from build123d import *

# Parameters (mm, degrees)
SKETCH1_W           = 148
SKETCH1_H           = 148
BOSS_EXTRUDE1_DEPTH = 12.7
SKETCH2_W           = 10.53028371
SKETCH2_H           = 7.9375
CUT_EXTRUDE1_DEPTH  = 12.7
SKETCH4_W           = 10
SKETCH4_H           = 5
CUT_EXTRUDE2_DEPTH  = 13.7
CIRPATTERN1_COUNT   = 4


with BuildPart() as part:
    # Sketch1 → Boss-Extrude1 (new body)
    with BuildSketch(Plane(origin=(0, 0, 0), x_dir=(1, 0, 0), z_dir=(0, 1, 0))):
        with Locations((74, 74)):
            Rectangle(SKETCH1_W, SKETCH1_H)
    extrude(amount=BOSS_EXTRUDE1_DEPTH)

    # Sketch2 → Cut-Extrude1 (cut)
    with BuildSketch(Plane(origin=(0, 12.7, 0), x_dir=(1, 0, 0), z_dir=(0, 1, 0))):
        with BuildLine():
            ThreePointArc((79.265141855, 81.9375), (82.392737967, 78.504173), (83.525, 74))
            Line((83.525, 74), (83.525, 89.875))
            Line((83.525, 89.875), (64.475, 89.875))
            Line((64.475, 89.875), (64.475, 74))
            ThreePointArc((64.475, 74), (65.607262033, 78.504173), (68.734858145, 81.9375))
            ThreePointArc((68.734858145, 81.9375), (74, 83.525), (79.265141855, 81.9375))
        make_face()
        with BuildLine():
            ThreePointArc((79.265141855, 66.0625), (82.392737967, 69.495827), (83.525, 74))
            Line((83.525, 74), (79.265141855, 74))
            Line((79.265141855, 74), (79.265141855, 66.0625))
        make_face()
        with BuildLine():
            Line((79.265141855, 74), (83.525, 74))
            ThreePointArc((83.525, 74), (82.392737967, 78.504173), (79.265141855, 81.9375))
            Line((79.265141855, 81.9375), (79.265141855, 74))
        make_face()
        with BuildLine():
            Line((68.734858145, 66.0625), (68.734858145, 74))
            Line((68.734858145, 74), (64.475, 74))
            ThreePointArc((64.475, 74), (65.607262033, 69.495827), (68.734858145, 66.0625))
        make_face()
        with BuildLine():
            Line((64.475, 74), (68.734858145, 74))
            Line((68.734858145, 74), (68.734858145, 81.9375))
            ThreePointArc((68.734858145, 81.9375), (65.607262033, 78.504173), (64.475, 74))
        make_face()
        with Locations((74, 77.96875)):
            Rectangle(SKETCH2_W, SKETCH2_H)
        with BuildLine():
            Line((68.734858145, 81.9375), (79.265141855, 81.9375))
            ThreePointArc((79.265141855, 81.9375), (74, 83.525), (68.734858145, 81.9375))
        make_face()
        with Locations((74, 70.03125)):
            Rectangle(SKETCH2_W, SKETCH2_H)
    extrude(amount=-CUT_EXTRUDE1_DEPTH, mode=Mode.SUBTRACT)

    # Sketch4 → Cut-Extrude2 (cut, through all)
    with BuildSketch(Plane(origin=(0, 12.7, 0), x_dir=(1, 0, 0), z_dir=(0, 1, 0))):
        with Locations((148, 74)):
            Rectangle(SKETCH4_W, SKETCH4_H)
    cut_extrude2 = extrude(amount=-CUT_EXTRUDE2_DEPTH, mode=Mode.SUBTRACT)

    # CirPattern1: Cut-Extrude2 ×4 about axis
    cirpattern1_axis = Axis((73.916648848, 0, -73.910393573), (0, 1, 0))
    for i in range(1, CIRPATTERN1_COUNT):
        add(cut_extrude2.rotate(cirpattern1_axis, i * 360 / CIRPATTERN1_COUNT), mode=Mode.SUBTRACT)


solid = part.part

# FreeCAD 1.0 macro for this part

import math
import FreeCAD as App
import Part
import Sketcher
from FreeCAD import Vector


def add_polygon(sketch, points):
    """Adds a closed chain of lines whose ends are joined by coincident constraints."""
    first, n = sketch.GeometryCount, len(points)
    for a, b in zip(points, points[1:] + points[:1]):
        sketch.addGeometry(Part.LineSegment(App.Vector(*a, 0), App.Vector(*b, 0)), False)
    for i in range(n):
        sketch.addConstraint(Sketcher.Constraint("Coincident", first + i, 2, first + (i + 1) % n, 1))

doc = App.newDocument("Part")
body = doc.addObject("PartDesign::Body", "Body")

# Sketch on XZ plane
sketch1 = body.newObject("Sketcher::SketchObject", "Sketch")
sketch1.AttachmentSupport = (doc.getObject("XZ_Plane"), [""])
sketch1.MapMode = "FlatFace"
add_polygon(sketch1, [(0, -148), (0, 0), (148, 0), (148, -148)])  # lines 0-3
sketch1.addConstraint([
    Sketcher.Constraint("Vertical", 0),
    Sketcher.Constraint("Horizontal", 1),
    Sketcher.Constraint("Vertical", 2),
    Sketcher.Constraint("Horizontal", 3),
    Sketcher.Constraint("Coincident", 0, 2, -1, 1),
    Sketcher.Constraint("Equal", 3, 0),
    Sketcher.Constraint("DistanceX", 1, 1, 1, 2, 148.0),
])
pad1 = body.newObject("PartDesign::Pad", "Pad")
pad1.Profile = sketch1
pad1.Length = 12.7
pad1.Reversed = True

# Sketch on XZ plane
sketch2 = body.newObject("Sketcher::SketchObject", "Sketch001")
sketch2.AttachmentSupport = (doc.getObject("XZ_Plane"), [""])
sketch2.MapMode = "FlatFace"
sketch2.AttachmentOffset = App.Placement(Vector(0, 0, -12.7), App.Rotation())
sketch2.addGeometry([
    Part.ArcOfCircle(Part.Circle(Vector(74, -74, 0), Vector(0, 0, 1), 9.525), math.radians(0), math.radians(56.44269)),  # 0
    Part.LineSegment(Vector(83.525, -74, 0), Vector(83.525, -89.875, 0)),  # 1
    Part.LineSegment(Vector(83.525, -89.875, 0), Vector(64.475, -89.875, 0)),  # 2
    Part.LineSegment(Vector(64.475, -89.875, 0), Vector(64.475, -74, 0)),  # 3
    Part.ArcOfCircle(Part.Circle(Vector(74, -74, 0), Vector(0, 0, 1), 9.525), math.radians(123.55731), math.radians(180)),  # 4
    Part.LineSegment(Vector(68.734858, -66.0625, 0), Vector(79.265142, -66.0625, 0)),  # 5
], False)
sketch2.addConstraint([
    Sketcher.Constraint("Tangent", 0, 1, 1, 1),
    Sketcher.Constraint("Coincident", 1, 2, 2, 1),
    Sketcher.Constraint("Coincident", 2, 2, 3, 1),
    Sketcher.Constraint("Tangent", 3, 2, 4, 2),
    Sketcher.Constraint("Coincident", 4, 1, 5, 1),
    Sketcher.Constraint("Coincident", 5, 2, 0, 2),
    Sketcher.Constraint("Vertical", 1),
    Sketcher.Constraint("Horizontal", 2),
    Sketcher.Constraint("Vertical", 3),
    Sketcher.Constraint("Horizontal", 5),
    Sketcher.Constraint("Coincident", 4, 3, 0, 3),
    Sketcher.Constraint("Equal", 0, 4),
    Sketcher.Constraint("DistanceX", -1, 1, 0, 3, 74.0),
    Sketcher.Constraint("DistanceY", 0, 3, -1, 1, 74.0),
    Sketcher.Constraint("Radius", 0, 9.525),
    Sketcher.Constraint("DistanceY", 1, 2, 1, 1, 15.875),
    Sketcher.Constraint("DistanceY", 4, 1, -1, 1, 66.0625),
])
pocket1 = body.newObject("PartDesign::Pocket", "Pocket")
pocket1.Profile = sketch2
pocket1.Length = 12.7
pocket1.Reversed = True

# Sketch on XZ plane
sketch3 = body.newObject("Sketcher::SketchObject", "Sketch002")
sketch3.AttachmentSupport = (doc.getObject("XZ_Plane"), [""])
sketch3.MapMode = "FlatFace"
sketch3.AttachmentOffset = App.Placement(Vector(0, 0, -12.7), App.Rotation())
add_polygon(sketch3, [(143, -76.5), (143, -71.5), (153, -71.5), (153, -76.5)])  # lines 0-3
sketch3.addConstraint([
    Sketcher.Constraint("Vertical", 0),
    Sketcher.Constraint("Horizontal", 1),
    Sketcher.Constraint("Vertical", 2),
    Sketcher.Constraint("Horizontal", 3),
    Sketcher.Constraint("DistanceX", 1, 1, 1, 2, 10.0),
    Sketcher.Constraint("DistanceY", 0, 1, 0, 2, 5.0),
    Sketcher.Constraint("DistanceX", -1, 1, 0, 2, 143.0),
    Sketcher.Constraint("DistanceY", 0, 2, -1, 1, 71.5),
])
pocket2 = body.newObject("PartDesign::Pocket", "Pocket001")
pocket2.Profile = sketch3
pocket2.Type = "ThroughAll"
pocket2.Reversed = True
doc.recompute()

datumline = body.newObject("PartDesign::Line", "DatumLine")
datumline.Placement = App.Placement(Vector(73.916649, 0, -73.910394), App.Rotation(Vector(0, 0, 1), Vector(0, 1, 0)))
polarpattern = body.newObject("PartDesign::PolarPattern", "PolarPattern")
polarpattern.Originals = [pocket2]
polarpattern.Axis = (datumline, [""])
polarpattern.Angle = 360
polarpattern.Occurrences = 4
body.Tip = polarpattern

doc.recompute()
